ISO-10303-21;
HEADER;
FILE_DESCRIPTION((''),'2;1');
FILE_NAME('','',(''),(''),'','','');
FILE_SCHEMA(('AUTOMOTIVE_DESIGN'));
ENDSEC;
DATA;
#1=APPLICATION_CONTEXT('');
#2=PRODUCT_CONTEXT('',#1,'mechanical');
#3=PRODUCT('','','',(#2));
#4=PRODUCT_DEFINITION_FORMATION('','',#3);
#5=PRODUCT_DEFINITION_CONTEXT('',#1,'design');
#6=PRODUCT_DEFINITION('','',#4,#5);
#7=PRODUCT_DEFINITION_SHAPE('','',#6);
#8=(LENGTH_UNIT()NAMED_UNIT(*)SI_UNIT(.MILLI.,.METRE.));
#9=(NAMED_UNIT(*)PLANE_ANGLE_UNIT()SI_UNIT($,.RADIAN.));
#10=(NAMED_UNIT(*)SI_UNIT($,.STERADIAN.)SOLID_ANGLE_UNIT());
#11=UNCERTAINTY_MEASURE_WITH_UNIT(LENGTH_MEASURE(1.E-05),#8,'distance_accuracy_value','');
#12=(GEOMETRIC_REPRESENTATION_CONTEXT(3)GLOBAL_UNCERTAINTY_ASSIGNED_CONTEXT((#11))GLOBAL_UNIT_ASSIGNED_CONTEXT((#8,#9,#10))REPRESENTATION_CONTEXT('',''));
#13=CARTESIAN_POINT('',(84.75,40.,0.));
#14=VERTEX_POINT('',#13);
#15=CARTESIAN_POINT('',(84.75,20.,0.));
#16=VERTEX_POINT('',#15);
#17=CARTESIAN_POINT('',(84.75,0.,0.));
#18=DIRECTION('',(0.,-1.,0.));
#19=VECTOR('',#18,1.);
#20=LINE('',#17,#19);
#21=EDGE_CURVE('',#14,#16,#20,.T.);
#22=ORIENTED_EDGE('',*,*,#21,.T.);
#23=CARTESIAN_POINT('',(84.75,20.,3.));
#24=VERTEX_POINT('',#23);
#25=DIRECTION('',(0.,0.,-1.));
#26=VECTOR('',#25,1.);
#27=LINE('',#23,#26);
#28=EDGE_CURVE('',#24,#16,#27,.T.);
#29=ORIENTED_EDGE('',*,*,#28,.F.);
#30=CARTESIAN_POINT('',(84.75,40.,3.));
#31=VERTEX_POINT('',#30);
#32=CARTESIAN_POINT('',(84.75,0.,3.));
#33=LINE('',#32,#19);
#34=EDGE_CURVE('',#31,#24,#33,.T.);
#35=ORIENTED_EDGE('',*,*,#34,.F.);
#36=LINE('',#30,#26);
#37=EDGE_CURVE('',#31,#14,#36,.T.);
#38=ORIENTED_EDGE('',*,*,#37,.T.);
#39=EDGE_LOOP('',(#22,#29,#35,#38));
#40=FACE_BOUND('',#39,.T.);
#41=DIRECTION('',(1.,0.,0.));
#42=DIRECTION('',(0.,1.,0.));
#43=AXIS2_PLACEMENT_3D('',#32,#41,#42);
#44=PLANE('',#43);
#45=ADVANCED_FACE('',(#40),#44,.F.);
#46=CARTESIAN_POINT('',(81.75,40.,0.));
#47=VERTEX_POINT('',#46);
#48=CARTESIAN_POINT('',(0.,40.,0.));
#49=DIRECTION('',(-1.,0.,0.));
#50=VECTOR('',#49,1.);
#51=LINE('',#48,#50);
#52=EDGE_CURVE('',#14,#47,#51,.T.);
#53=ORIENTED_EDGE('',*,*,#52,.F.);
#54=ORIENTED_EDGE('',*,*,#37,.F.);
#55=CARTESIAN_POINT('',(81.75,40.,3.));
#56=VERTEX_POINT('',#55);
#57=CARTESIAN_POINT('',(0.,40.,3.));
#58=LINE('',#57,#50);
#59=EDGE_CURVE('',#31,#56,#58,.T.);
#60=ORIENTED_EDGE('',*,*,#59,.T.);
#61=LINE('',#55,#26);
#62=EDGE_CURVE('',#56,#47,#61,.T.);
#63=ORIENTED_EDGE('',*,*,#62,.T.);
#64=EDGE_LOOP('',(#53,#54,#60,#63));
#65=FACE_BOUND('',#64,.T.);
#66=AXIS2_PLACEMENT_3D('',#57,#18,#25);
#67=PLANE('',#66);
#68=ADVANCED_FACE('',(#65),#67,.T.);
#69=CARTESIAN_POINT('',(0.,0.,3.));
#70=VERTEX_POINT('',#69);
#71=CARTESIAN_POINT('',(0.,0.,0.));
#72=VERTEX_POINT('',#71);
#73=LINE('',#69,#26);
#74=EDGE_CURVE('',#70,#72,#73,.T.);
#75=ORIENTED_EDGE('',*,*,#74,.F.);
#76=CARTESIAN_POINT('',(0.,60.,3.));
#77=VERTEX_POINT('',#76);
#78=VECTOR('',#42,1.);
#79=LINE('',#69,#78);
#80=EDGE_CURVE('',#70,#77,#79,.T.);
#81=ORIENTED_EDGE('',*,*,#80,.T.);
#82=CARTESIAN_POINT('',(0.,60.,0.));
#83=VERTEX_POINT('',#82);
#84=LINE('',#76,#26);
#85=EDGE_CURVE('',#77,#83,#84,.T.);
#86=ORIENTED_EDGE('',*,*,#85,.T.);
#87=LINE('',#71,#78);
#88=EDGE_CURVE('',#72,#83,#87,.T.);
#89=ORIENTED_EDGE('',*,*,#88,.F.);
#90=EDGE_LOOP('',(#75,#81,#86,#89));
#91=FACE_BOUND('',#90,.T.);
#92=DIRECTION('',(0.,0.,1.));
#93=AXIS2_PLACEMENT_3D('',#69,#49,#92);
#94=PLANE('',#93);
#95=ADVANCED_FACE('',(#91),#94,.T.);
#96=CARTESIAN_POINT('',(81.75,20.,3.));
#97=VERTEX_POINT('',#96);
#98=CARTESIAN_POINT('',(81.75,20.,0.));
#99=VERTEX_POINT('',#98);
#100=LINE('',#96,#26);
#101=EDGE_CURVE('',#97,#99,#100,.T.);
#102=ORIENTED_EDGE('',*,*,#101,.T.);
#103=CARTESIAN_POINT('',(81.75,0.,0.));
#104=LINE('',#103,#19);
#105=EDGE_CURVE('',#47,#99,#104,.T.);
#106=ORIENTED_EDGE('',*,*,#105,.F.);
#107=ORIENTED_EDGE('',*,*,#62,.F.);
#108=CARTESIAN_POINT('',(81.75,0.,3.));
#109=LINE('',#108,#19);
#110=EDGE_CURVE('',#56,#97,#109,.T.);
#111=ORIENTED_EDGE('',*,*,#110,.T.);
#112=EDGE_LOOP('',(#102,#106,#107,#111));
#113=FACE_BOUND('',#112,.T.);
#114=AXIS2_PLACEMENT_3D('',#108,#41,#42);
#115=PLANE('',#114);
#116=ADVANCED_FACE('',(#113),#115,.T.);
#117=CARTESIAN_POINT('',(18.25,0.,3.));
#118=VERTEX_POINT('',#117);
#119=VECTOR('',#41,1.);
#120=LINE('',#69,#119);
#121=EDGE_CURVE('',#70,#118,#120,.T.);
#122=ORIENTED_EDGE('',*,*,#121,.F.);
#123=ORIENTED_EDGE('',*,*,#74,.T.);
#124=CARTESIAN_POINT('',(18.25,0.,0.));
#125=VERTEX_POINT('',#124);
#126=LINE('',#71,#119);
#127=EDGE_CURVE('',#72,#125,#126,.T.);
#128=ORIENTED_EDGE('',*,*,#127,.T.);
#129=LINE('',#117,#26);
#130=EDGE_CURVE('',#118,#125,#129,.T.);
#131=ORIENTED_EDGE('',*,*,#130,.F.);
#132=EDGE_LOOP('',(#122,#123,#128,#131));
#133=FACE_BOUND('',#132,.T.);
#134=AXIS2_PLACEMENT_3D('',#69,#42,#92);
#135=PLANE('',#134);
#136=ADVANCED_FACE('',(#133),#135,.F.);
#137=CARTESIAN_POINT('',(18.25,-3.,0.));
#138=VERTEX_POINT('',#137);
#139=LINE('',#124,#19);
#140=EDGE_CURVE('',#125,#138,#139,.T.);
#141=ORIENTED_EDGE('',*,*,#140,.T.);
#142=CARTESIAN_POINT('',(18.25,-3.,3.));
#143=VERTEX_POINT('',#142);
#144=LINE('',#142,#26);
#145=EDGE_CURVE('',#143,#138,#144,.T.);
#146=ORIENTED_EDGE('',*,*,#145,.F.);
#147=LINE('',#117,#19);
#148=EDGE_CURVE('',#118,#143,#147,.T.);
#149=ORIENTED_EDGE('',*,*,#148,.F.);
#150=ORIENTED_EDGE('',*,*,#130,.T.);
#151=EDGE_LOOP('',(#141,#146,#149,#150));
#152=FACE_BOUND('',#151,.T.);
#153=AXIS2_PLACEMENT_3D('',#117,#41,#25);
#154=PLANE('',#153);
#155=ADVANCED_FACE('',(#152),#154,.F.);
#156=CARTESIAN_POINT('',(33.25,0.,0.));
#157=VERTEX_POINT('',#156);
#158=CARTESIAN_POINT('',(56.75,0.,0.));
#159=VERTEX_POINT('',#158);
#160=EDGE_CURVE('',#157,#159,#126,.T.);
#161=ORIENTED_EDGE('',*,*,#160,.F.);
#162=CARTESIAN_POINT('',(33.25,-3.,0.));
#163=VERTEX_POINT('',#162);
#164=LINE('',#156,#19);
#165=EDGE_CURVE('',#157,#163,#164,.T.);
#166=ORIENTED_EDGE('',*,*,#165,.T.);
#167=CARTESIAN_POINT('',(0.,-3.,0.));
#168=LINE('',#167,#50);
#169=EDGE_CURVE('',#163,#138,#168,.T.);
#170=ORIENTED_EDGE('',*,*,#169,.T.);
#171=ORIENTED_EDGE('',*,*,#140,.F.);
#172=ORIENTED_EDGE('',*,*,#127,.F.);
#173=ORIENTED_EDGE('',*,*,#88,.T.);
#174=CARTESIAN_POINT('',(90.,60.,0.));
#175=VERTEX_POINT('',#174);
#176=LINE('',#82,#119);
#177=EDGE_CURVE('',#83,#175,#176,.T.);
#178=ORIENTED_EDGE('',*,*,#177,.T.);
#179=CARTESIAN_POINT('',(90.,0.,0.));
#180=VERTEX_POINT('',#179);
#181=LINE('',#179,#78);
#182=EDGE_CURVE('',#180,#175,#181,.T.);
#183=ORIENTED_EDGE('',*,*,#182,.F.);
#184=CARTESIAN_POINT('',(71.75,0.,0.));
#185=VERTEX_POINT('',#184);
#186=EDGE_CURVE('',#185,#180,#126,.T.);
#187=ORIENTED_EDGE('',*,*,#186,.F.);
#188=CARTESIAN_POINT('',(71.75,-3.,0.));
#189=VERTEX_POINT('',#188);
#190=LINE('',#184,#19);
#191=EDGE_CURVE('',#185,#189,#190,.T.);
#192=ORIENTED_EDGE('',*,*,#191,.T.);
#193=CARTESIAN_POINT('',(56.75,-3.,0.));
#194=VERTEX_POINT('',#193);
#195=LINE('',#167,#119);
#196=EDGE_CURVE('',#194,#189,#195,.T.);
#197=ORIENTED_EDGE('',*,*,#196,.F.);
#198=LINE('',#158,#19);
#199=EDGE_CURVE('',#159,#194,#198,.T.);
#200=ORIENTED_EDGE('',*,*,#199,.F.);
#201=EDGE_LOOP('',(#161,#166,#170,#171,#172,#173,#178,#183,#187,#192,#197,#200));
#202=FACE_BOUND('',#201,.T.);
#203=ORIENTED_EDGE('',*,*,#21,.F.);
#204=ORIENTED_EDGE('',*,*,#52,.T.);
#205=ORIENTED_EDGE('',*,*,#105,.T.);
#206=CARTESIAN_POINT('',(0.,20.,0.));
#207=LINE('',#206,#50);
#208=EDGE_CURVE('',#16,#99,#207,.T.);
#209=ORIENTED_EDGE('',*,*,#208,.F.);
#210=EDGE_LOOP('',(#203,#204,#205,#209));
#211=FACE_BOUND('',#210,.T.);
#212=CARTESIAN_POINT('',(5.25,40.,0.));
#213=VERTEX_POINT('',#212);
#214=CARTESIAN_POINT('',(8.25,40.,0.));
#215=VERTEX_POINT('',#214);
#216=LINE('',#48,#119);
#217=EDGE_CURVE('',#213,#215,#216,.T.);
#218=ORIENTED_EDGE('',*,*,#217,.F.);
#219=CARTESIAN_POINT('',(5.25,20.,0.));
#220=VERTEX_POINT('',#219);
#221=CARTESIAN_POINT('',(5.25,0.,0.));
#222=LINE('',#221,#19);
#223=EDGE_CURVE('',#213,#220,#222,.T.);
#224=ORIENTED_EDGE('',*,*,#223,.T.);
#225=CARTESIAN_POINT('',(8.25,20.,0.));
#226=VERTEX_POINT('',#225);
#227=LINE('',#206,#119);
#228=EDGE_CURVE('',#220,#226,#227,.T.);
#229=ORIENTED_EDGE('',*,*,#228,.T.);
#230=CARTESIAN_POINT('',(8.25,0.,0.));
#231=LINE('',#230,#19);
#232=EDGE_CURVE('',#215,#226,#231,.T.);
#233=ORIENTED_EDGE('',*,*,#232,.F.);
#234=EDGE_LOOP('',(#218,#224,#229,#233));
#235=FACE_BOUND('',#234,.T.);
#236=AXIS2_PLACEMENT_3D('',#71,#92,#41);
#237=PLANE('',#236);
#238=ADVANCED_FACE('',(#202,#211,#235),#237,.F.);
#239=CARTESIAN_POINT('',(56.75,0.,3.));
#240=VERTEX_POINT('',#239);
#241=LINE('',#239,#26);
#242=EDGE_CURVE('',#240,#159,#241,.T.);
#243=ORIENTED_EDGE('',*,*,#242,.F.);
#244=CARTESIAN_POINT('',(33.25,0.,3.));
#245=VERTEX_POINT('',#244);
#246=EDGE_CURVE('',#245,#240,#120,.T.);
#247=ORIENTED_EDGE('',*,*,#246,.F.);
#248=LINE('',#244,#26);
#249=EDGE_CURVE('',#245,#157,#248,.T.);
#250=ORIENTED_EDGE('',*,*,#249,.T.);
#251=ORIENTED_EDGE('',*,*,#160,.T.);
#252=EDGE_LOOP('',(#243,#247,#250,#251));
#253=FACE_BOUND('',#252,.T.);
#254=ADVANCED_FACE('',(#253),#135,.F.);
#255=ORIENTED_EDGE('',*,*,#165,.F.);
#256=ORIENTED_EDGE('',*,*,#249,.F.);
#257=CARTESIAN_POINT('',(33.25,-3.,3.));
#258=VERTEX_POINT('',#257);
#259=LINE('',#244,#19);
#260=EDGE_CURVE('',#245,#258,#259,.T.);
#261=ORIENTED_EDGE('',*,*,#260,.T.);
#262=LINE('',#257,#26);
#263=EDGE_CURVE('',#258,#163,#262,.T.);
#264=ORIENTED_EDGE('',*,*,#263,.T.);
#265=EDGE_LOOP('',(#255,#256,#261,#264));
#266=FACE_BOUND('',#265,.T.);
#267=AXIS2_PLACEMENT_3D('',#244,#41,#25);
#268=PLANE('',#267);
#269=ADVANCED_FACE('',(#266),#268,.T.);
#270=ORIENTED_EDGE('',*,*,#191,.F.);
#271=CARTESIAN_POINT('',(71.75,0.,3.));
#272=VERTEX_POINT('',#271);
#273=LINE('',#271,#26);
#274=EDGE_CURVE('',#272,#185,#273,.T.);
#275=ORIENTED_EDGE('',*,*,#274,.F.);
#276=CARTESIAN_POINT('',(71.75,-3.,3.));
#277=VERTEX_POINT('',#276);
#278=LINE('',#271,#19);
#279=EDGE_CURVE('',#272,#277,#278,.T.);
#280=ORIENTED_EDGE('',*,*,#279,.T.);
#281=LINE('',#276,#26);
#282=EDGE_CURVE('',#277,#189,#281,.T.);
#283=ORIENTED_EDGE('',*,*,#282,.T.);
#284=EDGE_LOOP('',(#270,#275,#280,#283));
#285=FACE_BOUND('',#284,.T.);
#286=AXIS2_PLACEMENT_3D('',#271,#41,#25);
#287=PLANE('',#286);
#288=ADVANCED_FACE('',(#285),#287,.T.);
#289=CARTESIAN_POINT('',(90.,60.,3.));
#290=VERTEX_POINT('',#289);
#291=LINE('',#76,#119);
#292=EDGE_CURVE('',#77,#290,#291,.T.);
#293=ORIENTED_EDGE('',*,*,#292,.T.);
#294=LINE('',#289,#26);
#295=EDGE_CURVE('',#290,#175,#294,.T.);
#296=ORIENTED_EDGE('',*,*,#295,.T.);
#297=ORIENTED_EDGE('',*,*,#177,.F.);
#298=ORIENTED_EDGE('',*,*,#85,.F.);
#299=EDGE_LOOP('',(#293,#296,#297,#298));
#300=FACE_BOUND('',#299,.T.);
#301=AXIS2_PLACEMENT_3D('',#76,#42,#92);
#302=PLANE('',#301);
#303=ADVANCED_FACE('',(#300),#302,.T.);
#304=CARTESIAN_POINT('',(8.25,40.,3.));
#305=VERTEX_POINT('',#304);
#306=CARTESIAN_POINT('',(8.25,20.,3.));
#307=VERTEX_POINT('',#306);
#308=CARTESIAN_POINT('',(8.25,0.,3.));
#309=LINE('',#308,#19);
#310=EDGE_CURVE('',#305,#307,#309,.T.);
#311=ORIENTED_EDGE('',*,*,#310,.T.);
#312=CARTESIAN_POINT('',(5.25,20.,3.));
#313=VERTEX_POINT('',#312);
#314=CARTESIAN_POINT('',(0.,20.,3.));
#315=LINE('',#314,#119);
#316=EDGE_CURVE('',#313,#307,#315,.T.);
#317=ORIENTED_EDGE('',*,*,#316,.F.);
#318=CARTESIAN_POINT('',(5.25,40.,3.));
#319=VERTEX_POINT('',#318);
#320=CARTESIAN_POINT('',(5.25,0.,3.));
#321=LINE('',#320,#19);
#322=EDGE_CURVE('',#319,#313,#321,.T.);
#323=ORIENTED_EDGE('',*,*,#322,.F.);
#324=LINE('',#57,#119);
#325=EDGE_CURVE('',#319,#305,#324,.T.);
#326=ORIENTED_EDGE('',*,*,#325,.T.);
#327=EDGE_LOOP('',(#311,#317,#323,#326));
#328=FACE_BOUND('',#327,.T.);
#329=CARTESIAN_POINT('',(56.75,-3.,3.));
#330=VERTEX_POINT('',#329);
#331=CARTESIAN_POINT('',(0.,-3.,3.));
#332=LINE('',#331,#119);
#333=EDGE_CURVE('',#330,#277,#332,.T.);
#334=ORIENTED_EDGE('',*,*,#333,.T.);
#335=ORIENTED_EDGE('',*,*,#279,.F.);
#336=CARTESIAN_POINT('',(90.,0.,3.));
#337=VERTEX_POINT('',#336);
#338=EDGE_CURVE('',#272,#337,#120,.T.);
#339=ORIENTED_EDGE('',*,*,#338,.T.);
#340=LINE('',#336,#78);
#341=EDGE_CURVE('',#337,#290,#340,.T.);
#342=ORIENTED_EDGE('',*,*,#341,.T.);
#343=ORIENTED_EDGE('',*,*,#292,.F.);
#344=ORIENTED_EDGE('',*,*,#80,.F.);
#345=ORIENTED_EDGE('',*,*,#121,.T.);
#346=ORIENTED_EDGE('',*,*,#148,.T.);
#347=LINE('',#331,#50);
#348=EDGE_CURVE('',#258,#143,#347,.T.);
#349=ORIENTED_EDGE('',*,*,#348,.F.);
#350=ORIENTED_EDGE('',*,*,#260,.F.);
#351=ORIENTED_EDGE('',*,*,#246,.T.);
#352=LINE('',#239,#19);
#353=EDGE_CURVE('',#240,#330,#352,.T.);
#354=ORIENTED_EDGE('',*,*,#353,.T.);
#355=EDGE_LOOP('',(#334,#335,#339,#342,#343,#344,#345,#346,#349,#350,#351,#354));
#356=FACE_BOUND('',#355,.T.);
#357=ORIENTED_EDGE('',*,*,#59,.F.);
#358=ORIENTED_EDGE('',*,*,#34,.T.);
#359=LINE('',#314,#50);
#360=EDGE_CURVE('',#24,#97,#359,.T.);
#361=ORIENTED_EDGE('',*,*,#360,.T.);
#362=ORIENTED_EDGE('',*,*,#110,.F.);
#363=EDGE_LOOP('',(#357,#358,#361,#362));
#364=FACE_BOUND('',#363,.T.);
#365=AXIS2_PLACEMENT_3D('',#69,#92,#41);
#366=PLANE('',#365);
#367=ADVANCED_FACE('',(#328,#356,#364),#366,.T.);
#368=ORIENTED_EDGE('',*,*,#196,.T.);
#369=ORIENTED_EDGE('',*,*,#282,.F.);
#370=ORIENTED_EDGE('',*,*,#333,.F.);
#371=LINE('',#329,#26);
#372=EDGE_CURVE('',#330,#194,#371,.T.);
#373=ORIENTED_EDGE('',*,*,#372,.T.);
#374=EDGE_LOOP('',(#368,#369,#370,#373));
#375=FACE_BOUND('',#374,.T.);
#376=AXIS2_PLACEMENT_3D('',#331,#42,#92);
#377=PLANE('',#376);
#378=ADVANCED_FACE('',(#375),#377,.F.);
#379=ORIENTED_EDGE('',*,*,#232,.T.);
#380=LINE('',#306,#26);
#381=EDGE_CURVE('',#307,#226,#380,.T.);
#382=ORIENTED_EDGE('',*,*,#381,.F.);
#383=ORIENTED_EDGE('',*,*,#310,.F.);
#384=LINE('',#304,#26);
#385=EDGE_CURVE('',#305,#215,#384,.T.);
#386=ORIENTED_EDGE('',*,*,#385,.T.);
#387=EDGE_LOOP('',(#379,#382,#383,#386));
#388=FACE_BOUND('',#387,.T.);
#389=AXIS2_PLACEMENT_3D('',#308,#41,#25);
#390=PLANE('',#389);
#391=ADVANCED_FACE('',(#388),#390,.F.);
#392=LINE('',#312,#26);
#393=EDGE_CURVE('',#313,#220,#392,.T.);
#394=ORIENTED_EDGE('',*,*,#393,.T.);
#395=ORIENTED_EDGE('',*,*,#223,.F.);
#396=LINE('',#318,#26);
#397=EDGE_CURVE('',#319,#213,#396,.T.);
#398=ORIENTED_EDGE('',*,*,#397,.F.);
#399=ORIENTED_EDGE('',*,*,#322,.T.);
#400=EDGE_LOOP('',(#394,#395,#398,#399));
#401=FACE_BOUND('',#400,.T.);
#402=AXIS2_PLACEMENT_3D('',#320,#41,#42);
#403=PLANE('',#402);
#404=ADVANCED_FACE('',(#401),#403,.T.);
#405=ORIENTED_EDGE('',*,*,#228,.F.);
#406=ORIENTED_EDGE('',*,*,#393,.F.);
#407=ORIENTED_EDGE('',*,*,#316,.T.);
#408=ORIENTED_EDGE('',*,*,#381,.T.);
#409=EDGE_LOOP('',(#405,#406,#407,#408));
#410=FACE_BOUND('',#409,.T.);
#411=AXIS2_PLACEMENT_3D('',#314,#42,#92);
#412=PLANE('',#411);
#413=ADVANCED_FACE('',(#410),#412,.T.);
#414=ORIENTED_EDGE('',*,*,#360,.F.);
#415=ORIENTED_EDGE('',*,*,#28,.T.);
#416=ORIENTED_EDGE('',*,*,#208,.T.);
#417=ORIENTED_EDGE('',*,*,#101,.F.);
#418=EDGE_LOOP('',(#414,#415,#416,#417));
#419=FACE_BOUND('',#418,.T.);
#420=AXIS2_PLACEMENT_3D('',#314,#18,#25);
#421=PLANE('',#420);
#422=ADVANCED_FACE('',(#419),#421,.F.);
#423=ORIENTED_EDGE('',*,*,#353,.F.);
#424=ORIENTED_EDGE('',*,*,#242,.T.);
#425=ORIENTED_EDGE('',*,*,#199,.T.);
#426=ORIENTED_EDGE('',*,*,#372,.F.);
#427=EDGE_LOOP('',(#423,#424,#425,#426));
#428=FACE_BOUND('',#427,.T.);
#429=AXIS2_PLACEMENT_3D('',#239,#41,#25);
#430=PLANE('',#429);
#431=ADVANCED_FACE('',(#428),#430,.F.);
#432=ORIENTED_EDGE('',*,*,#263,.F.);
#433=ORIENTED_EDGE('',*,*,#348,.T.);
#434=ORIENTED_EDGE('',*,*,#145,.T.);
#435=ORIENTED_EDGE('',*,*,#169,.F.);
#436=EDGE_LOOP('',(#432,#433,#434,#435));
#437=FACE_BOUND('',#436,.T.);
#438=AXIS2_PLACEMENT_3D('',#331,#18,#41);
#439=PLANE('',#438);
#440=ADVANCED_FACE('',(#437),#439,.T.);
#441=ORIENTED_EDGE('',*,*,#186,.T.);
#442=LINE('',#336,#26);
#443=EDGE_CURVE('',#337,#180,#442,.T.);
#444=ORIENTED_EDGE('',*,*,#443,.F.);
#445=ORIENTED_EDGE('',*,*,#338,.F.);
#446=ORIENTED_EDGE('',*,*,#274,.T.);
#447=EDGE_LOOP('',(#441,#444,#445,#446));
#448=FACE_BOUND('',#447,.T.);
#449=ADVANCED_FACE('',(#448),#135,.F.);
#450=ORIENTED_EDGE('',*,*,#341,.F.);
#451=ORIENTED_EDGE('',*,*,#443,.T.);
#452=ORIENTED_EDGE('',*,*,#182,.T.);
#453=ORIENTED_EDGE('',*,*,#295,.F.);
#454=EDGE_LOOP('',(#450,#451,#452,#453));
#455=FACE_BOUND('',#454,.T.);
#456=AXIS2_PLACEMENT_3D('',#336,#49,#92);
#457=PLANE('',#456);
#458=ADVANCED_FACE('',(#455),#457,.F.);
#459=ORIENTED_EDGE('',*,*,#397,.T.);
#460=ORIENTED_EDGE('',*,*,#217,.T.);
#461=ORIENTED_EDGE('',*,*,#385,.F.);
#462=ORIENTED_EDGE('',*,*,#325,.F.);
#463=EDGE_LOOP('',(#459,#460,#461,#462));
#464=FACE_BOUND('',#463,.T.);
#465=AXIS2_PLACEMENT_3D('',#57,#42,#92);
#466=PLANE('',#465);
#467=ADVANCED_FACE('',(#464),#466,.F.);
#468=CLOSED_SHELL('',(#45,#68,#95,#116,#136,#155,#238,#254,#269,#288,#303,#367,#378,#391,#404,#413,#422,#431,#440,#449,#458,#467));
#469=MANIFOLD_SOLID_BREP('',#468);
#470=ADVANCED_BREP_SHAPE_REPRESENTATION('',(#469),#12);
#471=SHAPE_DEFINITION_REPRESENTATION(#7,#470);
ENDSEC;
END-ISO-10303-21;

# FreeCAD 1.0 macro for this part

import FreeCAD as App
import Part
import Sketcher
Q = App.Units.Quantity


def add_polygon(sketch, points):
    """Adds a closed chain of lines whose ends are joined by coincident constraints."""
    first, n = sketch.GeometryCount, len(points)
    for a, b in zip(points, points[1:] + points[:1]):
        sketch.addGeometry(Part.LineSegment(App.Vector(*a, 0), App.Vector(*b, 0)), False)
    for i in range(n):
        sketch.addConstraint(Sketcher.Constraint("Coincident", first + i, 2, first + (i + 1) % n, 1))

doc = App.newDocument("Part")
body = doc.addObject("PartDesign::Body", "Body")

# Sketch on XY plane
sketch1 = body.newObject("Sketcher::SketchObject", "Sketch")
sketch1.AttachmentSupport = (doc.getObject("XY_Plane"), [""])
sketch1.MapMode = "FlatFace"
add_polygon(sketch1, [(0, 60), (0, 0), (18.2, 0), (18.2, -3), (33.2, -3), (33.2, 0), (56.8, 0), (56.8, -3), (71.8, -3), (71.8, 0), (90, 0), (90, 60)])  # lines 0-11
add_polygon(sketch1, [(8.2, 20), (5.2, 20), (5.2, 40), (8.2, 40)])  # lines 12-15
add_polygon(sketch1, [(84.8, 20), (81.8, 20), (81.8, 40), (84.8, 40)])  # lines 16-19
sketch1.addConstraint([
    Sketcher.Constraint("Vertical", 0),
    Sketcher.Constraint("Horizontal", 1),
    Sketcher.Constraint("Vertical", 2),
    Sketcher.Constraint("Horizontal", 3),
    Sketcher.Constraint("Vertical", 4),
    Sketcher.Constraint("Horizontal", 5),
    Sketcher.Constraint("Vertical", 6),
    Sketcher.Constraint("Horizontal", 7),
    Sketcher.Constraint("Vertical", 8),
    Sketcher.Constraint("Horizontal", 9),
    Sketcher.Constraint("Vertical", 10),
    Sketcher.Constraint("Horizontal", 11),
    Sketcher.Constraint("Horizontal", 12),
    Sketcher.Constraint("Vertical", 13),
    Sketcher.Constraint("Horizontal", 14),
    Sketcher.Constraint("Vertical", 15),
    Sketcher.Constraint("Horizontal", 16),
    Sketcher.Constraint("Vertical", 17),
    Sketcher.Constraint("Horizontal", 18),
    Sketcher.Constraint("Vertical", 19),
    Sketcher.Constraint("Coincident", 0, 2, -1, 1),
    Sketcher.Constraint("PointOnObject", 4, 2, -1),
    Sketcher.Constraint("PointOnObject", 8, 2, -1),
    Sketcher.Constraint("Horizontal", 3, 2, 6, 2),
    Sketcher.Constraint("Horizontal", 15, 2, 16, 2),
    Sketcher.Constraint("Horizontal", 14, 2, 17, 2),
    Sketcher.Constraint("Equal", 3, 7),
    Sketcher.Constraint("Equal", 1, 9),
    Sketcher.Constraint("Equal", 14, 16),
    Sketcher.Constraint("Equal", 18, 2),
    Sketcher.Constraint("DistanceX", 3, 1, 3, 2, Q("15 mm")),
    Sketcher.Constraint("DistanceX", 11, 2, 11, 1, Q("90 mm")),
    Sketcher.Constraint("DistanceX", 12, 2, 12, 1, Q("3 mm")),
    Sketcher.Constraint("DistanceY", 0, 2, 0, 1, Q("60 mm")),
    Sketcher.Constraint("DistanceY", 13, 1, 13, 2, Q("20 mm")),
    Sketcher.Constraint("DistanceX", 5, 1, 5, 2, Q("23.5 mm")),
    Sketcher.Constraint("DistanceY", -1, 1, 12, 2, Q("20 mm")),
    Sketcher.Constraint("DistanceX", 12, 2, 1, 2, Q("13 mm")),
    Sketcher.Constraint("DistanceX", 8, 2, 16, 2, Q("10 mm")),
])
pad1 = body.newObject("PartDesign::Pad", "Pad")
pad1.Profile = sketch1
pad1.Length = 3

doc.recompute()
